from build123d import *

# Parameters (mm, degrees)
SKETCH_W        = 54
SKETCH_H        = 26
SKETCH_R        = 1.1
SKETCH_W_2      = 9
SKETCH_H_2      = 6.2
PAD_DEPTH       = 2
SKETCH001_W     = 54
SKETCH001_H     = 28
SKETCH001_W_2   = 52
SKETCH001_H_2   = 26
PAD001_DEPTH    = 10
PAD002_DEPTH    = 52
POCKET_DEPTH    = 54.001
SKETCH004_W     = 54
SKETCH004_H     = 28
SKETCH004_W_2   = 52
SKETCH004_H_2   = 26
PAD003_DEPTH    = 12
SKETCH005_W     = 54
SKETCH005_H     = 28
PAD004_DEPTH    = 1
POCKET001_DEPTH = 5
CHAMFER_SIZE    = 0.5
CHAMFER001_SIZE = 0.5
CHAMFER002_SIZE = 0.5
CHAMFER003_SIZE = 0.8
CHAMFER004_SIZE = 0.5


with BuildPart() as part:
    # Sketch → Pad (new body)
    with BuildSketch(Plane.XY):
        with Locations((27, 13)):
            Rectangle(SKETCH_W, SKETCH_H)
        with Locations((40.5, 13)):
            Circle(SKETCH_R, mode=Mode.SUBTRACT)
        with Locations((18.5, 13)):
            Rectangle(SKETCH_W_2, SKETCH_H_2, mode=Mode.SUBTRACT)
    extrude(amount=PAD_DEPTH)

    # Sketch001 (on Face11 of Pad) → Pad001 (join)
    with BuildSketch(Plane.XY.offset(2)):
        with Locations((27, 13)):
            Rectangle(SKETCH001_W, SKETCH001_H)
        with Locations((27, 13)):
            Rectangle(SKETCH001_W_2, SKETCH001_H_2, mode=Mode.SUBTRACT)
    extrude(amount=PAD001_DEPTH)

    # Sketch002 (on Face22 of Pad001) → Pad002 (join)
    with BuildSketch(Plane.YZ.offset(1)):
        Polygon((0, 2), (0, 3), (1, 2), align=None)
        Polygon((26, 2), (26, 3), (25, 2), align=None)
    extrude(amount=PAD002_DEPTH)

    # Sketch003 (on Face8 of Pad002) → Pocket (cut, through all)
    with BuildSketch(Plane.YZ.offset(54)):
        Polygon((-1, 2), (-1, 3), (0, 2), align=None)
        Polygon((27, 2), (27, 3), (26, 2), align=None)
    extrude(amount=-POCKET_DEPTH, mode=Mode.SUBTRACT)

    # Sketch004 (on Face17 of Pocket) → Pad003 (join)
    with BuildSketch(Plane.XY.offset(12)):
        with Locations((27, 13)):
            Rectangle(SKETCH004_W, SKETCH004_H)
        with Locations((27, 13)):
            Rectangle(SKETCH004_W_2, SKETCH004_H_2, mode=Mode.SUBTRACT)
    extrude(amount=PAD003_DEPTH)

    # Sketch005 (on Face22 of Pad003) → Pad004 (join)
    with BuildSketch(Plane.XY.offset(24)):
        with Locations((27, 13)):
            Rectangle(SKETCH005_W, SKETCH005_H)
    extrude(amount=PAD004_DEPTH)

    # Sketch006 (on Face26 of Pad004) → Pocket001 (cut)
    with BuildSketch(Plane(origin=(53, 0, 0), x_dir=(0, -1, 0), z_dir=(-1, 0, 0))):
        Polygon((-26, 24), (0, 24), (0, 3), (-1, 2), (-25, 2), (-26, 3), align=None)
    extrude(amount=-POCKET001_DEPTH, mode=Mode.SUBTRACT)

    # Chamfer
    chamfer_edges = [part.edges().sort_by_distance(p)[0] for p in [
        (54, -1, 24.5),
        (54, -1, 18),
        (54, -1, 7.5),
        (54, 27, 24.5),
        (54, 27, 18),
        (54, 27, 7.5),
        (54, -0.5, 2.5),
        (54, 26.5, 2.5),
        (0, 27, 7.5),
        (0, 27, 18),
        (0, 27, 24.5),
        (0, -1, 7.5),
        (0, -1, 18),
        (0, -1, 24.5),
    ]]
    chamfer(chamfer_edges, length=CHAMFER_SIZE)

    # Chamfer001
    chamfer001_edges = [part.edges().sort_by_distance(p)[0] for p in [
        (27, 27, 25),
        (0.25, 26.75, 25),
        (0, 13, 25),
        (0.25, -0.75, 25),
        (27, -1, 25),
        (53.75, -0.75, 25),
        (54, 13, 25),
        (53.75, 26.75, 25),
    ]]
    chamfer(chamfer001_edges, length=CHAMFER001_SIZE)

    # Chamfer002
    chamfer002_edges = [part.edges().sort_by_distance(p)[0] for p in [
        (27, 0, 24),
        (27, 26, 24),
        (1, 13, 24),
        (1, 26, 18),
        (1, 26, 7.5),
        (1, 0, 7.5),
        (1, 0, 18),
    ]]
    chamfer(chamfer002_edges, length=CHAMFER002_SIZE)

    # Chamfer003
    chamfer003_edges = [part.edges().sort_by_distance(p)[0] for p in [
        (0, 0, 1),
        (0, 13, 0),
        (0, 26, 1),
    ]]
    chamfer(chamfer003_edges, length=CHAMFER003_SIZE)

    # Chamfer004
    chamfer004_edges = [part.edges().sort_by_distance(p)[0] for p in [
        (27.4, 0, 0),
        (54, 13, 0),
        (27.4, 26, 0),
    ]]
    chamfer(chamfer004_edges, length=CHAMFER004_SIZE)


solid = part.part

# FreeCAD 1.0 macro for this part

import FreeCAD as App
import Part
import Sketcher
Q = App.Units.Quantity


def edges_at(feature, points):
    """Names of the edges that pass closest to the given points."""
    edges = feature.Shape.Edges
    near = lambda p: min(range(len(edges)), key=lambda i: edges[i].distToShape(Part.Vertex(*p))[0])
    return sorted({f"Edge{near(p) + 1}" for p in points})

doc = App.newDocument("Part")
body = doc.addObject("PartDesign::Body", "Body")

# Sketch on XY plane
sketch1 = body.newObject("Sketcher::SketchObject", "Sketch")
sketch1.AttachmentSupport = (doc.getObject("XY_Plane"), [""])
sketch1.MapMode = "FlatFace"
sketch1.addGeometry(Part.LineSegment(App.Vector(0, 26, 0), App.Vector(0, 0, 0)), False)
sketch1.addGeometry(Part.LineSegment(App.Vector(0, 0, 0), App.Vector(54, 0, 0)), False)
sketch1.addGeometry(Part.LineSegment(App.Vector(54, 0, 0), App.Vector(54, 26, 0)), False)
sketch1.addGeometry(Part.LineSegment(App.Vector(54, 26, 0), App.Vector(0, 26, 0)), False)
sketch1.addGeometry(Part.LineSegment(App.Vector(23, 9.9, 0), App.Vector(14, 9.9, 0)), False)
sketch1.addGeometry(Part.LineSegment(App.Vector(14, 9.9, 0), App.Vector(14, 16.1, 0)), False)
sketch1.addGeometry(Part.LineSegment(App.Vector(14, 16.1, 0), App.Vector(23, 16.1, 0)), False)
sketch1.addGeometry(Part.LineSegment(App.Vector(23, 16.1, 0), App.Vector(23, 9.9, 0)), False)
sketch1.addGeometry(Part.Circle(App.Vector(40.5, 13, 0), App.Vector(0, 0, 1), 1.1), False)
sketch1.addConstraint(Sketcher.Constraint("Coincident", 0, 2, 1, 1))
sketch1.addConstraint(Sketcher.Constraint("Coincident", 1, 2, 2, 1))
sketch1.addConstraint(Sketcher.Constraint("Coincident", 2, 2, 3, 1))
sketch1.addConstraint(Sketcher.Constraint("Coincident", 3, 2, 0, 1))
sketch1.addConstraint(Sketcher.Constraint("Coincident", 4, 2, 5, 1))
sketch1.addConstraint(Sketcher.Constraint("Coincident", 5, 2, 6, 1))
sketch1.addConstraint(Sketcher.Constraint("Coincident", 6, 2, 7, 1))
sketch1.addConstraint(Sketcher.Constraint("Coincident", 7, 2, 4, 1))
sketch1.addConstraint(Sketcher.Constraint("Vertical", 0))
sketch1.addConstraint(Sketcher.Constraint("Horizontal", 1))
sketch1.addConstraint(Sketcher.Constraint("Vertical", 2))
sketch1.addConstraint(Sketcher.Constraint("Horizontal", 3))
sketch1.addConstraint(Sketcher.Constraint("Horizontal", 4))
sketch1.addConstraint(Sketcher.Constraint("Vertical", 5))
sketch1.addConstraint(Sketcher.Constraint("Horizontal", 6))
sketch1.addConstraint(Sketcher.Constraint("Vertical", 7))
sketch1.addConstraint(Sketcher.Constraint("Coincident", 0, 2, -1, 1))
sketch1.addConstraint(Sketcher.Constraint("Diameter", 8, Q("2.2 mm")))
sketch1.addConstraint(Sketcher.Constraint("DistanceX", 1, 1, 1, 2, Q("54 mm")))
sketch1.addConstraint(Sketcher.Constraint("DistanceX", 4, 2, 4, 1, Q("9 mm")))
sketch1.addConstraint(Sketcher.Constraint("DistanceY", 0, 2, 0, 1, Q("26 mm")))
sketch1.addConstraint(Sketcher.Constraint("DistanceY", 5, 1, 5, 2, Q("6.2 mm")))
sketch1.addConstraint(Sketcher.Constraint("DistanceY", -1, 1, 8, 3, Q("13 mm")))
sketch1.addConstraint(Sketcher.Constraint("DistanceX", -1, 1, 4, 2, Q("14 mm")))
sketch1.addConstraint(Sketcher.Constraint("DistanceX", -1, 1, 8, 3, Q("40.5 mm")))
sketch1.addConstraint(Sketcher.Constraint("DistanceY", -1, 1, 4, 2, Q("9.9 mm")))
pad1 = body.newObject("PartDesign::Pad", "Pad")
pad1.Profile = sketch1
pad1.Length = 2

# Sketch on XY plane
sketch2 = body.newObject("Sketcher::SketchObject", "Sketch001")
sketch2.AttachmentSupport = (doc.getObject("XY_Plane"), [""])
sketch2.MapMode = "FlatFace"
sketch2.AttachmentOffset = App.Placement(App.Vector(0, 0, 2), App.Rotation())
sketch2.addGeometry(Part.LineSegment(App.Vector(0, 27, 0), App.Vector(0, -1, 0)), False)
sketch2.addGeometry(Part.LineSegment(App.Vector(0, -1, 0), App.Vector(54, -1, 0)), False)
sketch2.addGeometry(Part.LineSegment(App.Vector(54, -1, 0), App.Vector(54, 27, 0)), False)
sketch2.addGeometry(Part.LineSegment(App.Vector(54, 27, 0), App.Vector(0, 27, 0)), False)
sketch2.addGeometry(Part.LineSegment(App.Vector(53, 0, 0), App.Vector(1, 0, 0)), False)
sketch2.addGeometry(Part.LineSegment(App.Vector(1, 0, 0), App.Vector(1, 26, 0)), False)
sketch2.addGeometry(Part.LineSegment(App.Vector(1, 26, 0), App.Vector(53, 26, 0)), False)
sketch2.addGeometry(Part.LineSegment(App.Vector(53, 26, 0), App.Vector(53, 0, 0)), False)
sketch2.addConstraint(Sketcher.Constraint("Coincident", 0, 2, 1, 1))
sketch2.addConstraint(Sketcher.Constraint("Coincident", 1, 2, 2, 1))
sketch2.addConstraint(Sketcher.Constraint("Coincident", 2, 2, 3, 1))
sketch2.addConstraint(Sketcher.Constraint("Coincident", 3, 2, 0, 1))
sketch2.addConstraint(Sketcher.Constraint("Coincident", 4, 2, 5, 1))
sketch2.addConstraint(Sketcher.Constraint("Coincident", 5, 2, 6, 1))
sketch2.addConstraint(Sketcher.Constraint("Coincident", 6, 2, 7, 1))
sketch2.addConstraint(Sketcher.Constraint("Coincident", 7, 2, 4, 1))
sketch2.addConstraint(Sketcher.Constraint("Vertical", 0))
sketch2.addConstraint(Sketcher.Constraint("Horizontal", 1))
sketch2.addConstraint(Sketcher.Constraint("Vertical", 2))
sketch2.addConstraint(Sketcher.Constraint("Horizontal", 3))
sketch2.addConstraint(Sketcher.Constraint("Horizontal", 4))
sketch2.addConstraint(Sketcher.Constraint("Vertical", 5))
sketch2.addConstraint(Sketcher.Constraint("Horizontal", 6))
sketch2.addConstraint(Sketcher.Constraint("Vertical", 7))
sketch2.addConstraint(Sketcher.Constraint("PointOnObject", 0, 2, -2))
sketch2.addConstraint(Sketcher.Constraint("PointOnObject", 4, 2, -1))
sketch2.addConstraint(Sketcher.Constraint("DistanceX", 1, 1, 1, 2, Q("54 mm")))
sketch2.addConstraint(Sketcher.Constraint("DistanceX", 4, 2, 4, 1, Q("52 mm")))
sketch2.addConstraint(Sketcher.Constraint("DistanceY", 0, 2, 0, 1, Q("28 mm")))
sketch2.addConstraint(Sketcher.Constraint("DistanceY", 5, 1, 5, 2, Q("26 mm")))
sketch2.addConstraint(Sketcher.Constraint("DistanceY", 0, 2, -1, 1, Q("1 mm")))
sketch2.addConstraint(Sketcher.Constraint("DistanceX", -1, 1, 4, 2, Q("1 mm")))
pad2 = body.newObject("PartDesign::Pad", "Pad001")
pad2.Profile = sketch2
pad2.Length = 10

# Sketch on YZ plane
sketch3 = body.newObject("Sketcher::SketchObject", "Sketch002")
sketch3.AttachmentSupport = (doc.getObject("YZ_Plane"), [""])
sketch3.MapMode = "FlatFace"
sketch3.AttachmentOffset = App.Placement(App.Vector(0, 0, 1), App.Rotation())
sketch3.addGeometry(Part.LineSegment(App.Vector(0, 3, 0), App.Vector(0, 2, 0)), False)
sketch3.addGeometry(Part.LineSegment(App.Vector(0, 2, 0), App.Vector(1, 2, 0)), False)
sketch3.addGeometry(Part.LineSegment(App.Vector(1, 2, 0), App.Vector(0, 3, 0)), False)
sketch3.addGeometry(Part.LineSegment(App.Vector(26, 2, 0), App.Vector(26, 3, 0)), False)
sketch3.addGeometry(Part.LineSegment(App.Vector(26, 3, 0), App.Vector(25, 2, 0)), False)
sketch3.addGeometry(Part.LineSegment(App.Vector(25, 2, 0), App.Vector(26, 2, 0)), False)
sketch3.addConstraint(Sketcher.Constraint("Coincident", 0, 2, 1, 1))
sketch3.addConstraint(Sketcher.Constraint("Coincident", 1, 2, 2, 1))
sketch3.addConstraint(Sketcher.Constraint("Coincident", 2, 2, 0, 1))
sketch3.addConstraint(Sketcher.Constraint("Coincident", 3, 2, 4, 1))
sketch3.addConstraint(Sketcher.Constraint("Coincident", 4, 2, 5, 1))
sketch3.addConstraint(Sketcher.Constraint("Coincident", 5, 2, 3, 1))
sketch3.addConstraint(Sketcher.Constraint("Vertical", 0))
sketch3.addConstraint(Sketcher.Constraint("Horizontal", 1))
sketch3.addConstraint(Sketcher.Constraint("Vertical", 3))
sketch3.addConstraint(Sketcher.Constraint("Horizontal", 5))
sketch3.addConstraint(Sketcher.Constraint("PointOnObject", 0, 2, -2))
sketch3.addConstraint(Sketcher.Constraint("Perpendicular", 2, 4))
sketch3.addConstraint(Sketcher.Constraint("Horizontal", 2, 2, 3, 2))
sketch3.addConstraint(Sketcher.Constraint("Horizontal", 1, 2, 4, 2))
sketch3.addConstraint(Sketcher.Constraint("Equal", 1, 5))
sketch3.addConstraint(Sketcher.Constraint("DistanceX", 1, 1, 1, 2, Q("1 mm")))
sketch3.addConstraint(Sketcher.Constraint("DistanceY", -1, 1, 0, 2, Q("2 mm")))
sketch3.addConstraint(Sketcher.Constraint("DistanceX", -1, 1, 3, 2, Q("26 mm")))
pad3 = body.newObject("PartDesign::Pad", "Pad002")
pad3.Profile = sketch3
pad3.Length = 52

# Sketch on YZ plane
sketch4 = body.newObject("Sketcher::SketchObject", "Sketch003")
sketch4.AttachmentSupport = (doc.getObject("YZ_Plane"), [""])
sketch4.MapMode = "FlatFace"
sketch4.AttachmentOffset = App.Placement(App.Vector(0, 0, 54), App.Rotation())
sketch4.addGeometry(Part.LineSegment(App.Vector(-1, 3, 0), App.Vector(-1, 2, 0)), False)
sketch4.addGeometry(Part.LineSegment(App.Vector(-1, 2, 0), App.Vector(0, 2, 0)), False)
sketch4.addGeometry(Part.LineSegment(App.Vector(0, 2, 0), App.Vector(-1, 3, 0)), False)
sketch4.addGeometry(Part.LineSegment(App.Vector(27, 2, 0), App.Vector(27, 3, 0)), False)
sketch4.addGeometry(Part.LineSegment(App.Vector(27, 3, 0), App.Vector(26, 2, 0)), False)
sketch4.addGeometry(Part.LineSegment(App.Vector(26, 2, 0), App.Vector(27, 2, 0)), False)
sketch4.addConstraint(Sketcher.Constraint("Coincident", 0, 2, 1, 1))
sketch4.addConstraint(Sketcher.Constraint("Coincident", 1, 2, 2, 1))
sketch4.addConstraint(Sketcher.Constraint("Coincident", 2, 2, 0, 1))
sketch4.addConstraint(Sketcher.Constraint("Coincident", 3, 2, 4, 1))
sketch4.addConstraint(Sketcher.Constraint("Coincident", 4, 2, 5, 1))
sketch4.addConstraint(Sketcher.Constraint("Coincident", 5, 2, 3, 1))
sketch4.addConstraint(Sketcher.Constraint("Vertical", 0))
sketch4.addConstraint(Sketcher.Constraint("Horizontal", 1))
sketch4.addConstraint(Sketcher.Constraint("Vertical", 3))
sketch4.addConstraint(Sketcher.Constraint("Horizontal", 5))
sketch4.addConstraint(Sketcher.Constraint("PointOnObject", 1, 2, -2))
sketch4.addConstraint(Sketcher.Constraint("Perpendicular", 2, 4))
sketch4.addConstraint(Sketcher.Constraint("Horizontal", 2, 2, 3, 2))
sketch4.addConstraint(Sketcher.Constraint("Horizontal", 1, 2, 4, 2))
sketch4.addConstraint(Sketcher.Constraint("Equal", 1, 5))
sketch4.addConstraint(Sketcher.Constraint("DistanceX", 1, 1, 1, 2, Q("1 mm")))
sketch4.addConstraint(Sketcher.Constraint("DistanceY", -1, 1, 0, 2, Q("2 mm")))
sketch4.addConstraint(Sketcher.Constraint("DistanceX", -1, 1, 3, 2, Q("27 mm")))
pocket1 = body.newObject("PartDesign::Pocket", "Pocket")
pocket1.Profile = sketch4
pocket1.Type = "ThroughAll"

# Sketch on XY plane
sketch5 = body.newObject("Sketcher::SketchObject", "Sketch004")
sketch5.AttachmentSupport = (doc.getObject("XY_Plane"), [""])
sketch5.MapMode = "FlatFace"
sketch5.AttachmentOffset = App.Placement(App.Vector(0, 0, 12), App.Rotation())
sketch5.addGeometry(Part.LineSegment(App.Vector(0, 27, 0), App.Vector(0, -1, 0)), False)
sketch5.addGeometry(Part.LineSegment(App.Vector(0, -1, 0), App.Vector(54, -1, 0)), False)
sketch5.addGeometry(Part.LineSegment(App.Vector(54, -1, 0), App.Vector(54, 27, 0)), False)
sketch5.addGeometry(Part.LineSegment(App.Vector(54, 27, 0), App.Vector(0, 27, 0)), False)
sketch5.addGeometry(Part.LineSegment(App.Vector(53, 0, 0), App.Vector(1, 0, 0)), False)
sketch5.addGeometry(Part.LineSegment(App.Vector(1, 0, 0), App.Vector(1, 26, 0)), False)
sketch5.addGeometry(Part.LineSegment(App.Vector(1, 26, 0), App.Vector(53, 26, 0)), False)
sketch5.addGeometry(Part.LineSegment(App.Vector(53, 26, 0), App.Vector(53, 0, 0)), False)
sketch5.addConstraint(Sketcher.Constraint("Coincident", 0, 2, 1, 1))
sketch5.addConstraint(Sketcher.Constraint("Coincident", 1, 2, 2, 1))
sketch5.addConstraint(Sketcher.Constraint("Coincident", 2, 2, 3, 1))
sketch5.addConstraint(Sketcher.Constraint("Coincident", 3, 2, 0, 1))
sketch5.addConstraint(Sketcher.Constraint("Coincident", 4, 2, 5, 1))
sketch5.addConstraint(Sketcher.Constraint("Coincident", 5, 2, 6, 1))
sketch5.addConstraint(Sketcher.Constraint("Coincident", 6, 2, 7, 1))
sketch5.addConstraint(Sketcher.Constraint("Coincident", 7, 2, 4, 1))
sketch5.addConstraint(Sketcher.Constraint("Vertical", 0))
sketch5.addConstraint(Sketcher.Constraint("Horizontal", 1))
sketch5.addConstraint(Sketcher.Constraint("Vertical", 2))
sketch5.addConstraint(Sketcher.Constraint("Horizontal", 3))
sketch5.addConstraint(Sketcher.Constraint("Horizontal", 4))
sketch5.addConstraint(Sketcher.Constraint("Vertical", 5))
sketch5.addConstraint(Sketcher.Constraint("Horizontal", 6))
sketch5.addConstraint(Sketcher.Constraint("Vertical", 7))
sketch5.addConstraint(Sketcher.Constraint("PointOnObject", 0, 2, -2))
sketch5.addConstraint(Sketcher.Constraint("PointOnObject", 4, 2, -1))
sketch5.addConstraint(Sketcher.Constraint("DistanceX", 1, 1, 1, 2, Q("54 mm")))
sketch5.addConstraint(Sketcher.Constraint("DistanceX", 4, 2, 4, 1, Q("52 mm")))
sketch5.addConstraint(Sketcher.Constraint("DistanceY", 0, 2, 0, 1, Q("28 mm")))
sketch5.addConstraint(Sketcher.Constraint("DistanceY", 5, 1, 5, 2, Q("26 mm")))
sketch5.addConstraint(Sketcher.Constraint("DistanceY", 0, 2, -1, 1, Q("1 mm")))
sketch5.addConstraint(Sketcher.Constraint("DistanceX", -1, 1, 4, 2, Q("1 mm")))
pad4 = body.newObject("PartDesign::Pad", "Pad003")
pad4.Profile = sketch5
pad4.Length = 12

# Sketch on XY plane
sketch6 = body.newObject("Sketcher::SketchObject", "Sketch005")
sketch6.AttachmentSupport = (doc.getObject("XY_Plane"), [""])
sketch6.MapMode = "FlatFace"
sketch6.AttachmentOffset = App.Placement(App.Vector(0, 0, 24), App.Rotation())
sketch6.addGeometry(Part.LineSegment(App.Vector(0, 27, 0), App.Vector(0, -1, 0)), False)
sketch6.addGeometry(Part.LineSegment(App.Vector(0, -1, 0), App.Vector(54, -1, 0)), False)
sketch6.addGeometry(Part.LineSegment(App.Vector(54, -1, 0), App.Vector(54, 27, 0)), False)
sketch6.addGeometry(Part.LineSegment(App.Vector(54, 27, 0), App.Vector(0, 27, 0)), False)
sketch6.addConstraint(Sketcher.Constraint("Coincident", 0, 2, 1, 1))
sketch6.addConstraint(Sketcher.Constraint("Coincident", 1, 2, 2, 1))
sketch6.addConstraint(Sketcher.Constraint("Coincident", 2, 2, 3, 1))
sketch6.addConstraint(Sketcher.Constraint("Coincident", 3, 2, 0, 1))
sketch6.addConstraint(Sketcher.Constraint("Vertical", 0))
sketch6.addConstraint(Sketcher.Constraint("Horizontal", 1))
sketch6.addConstraint(Sketcher.Constraint("Vertical", 2))
sketch6.addConstraint(Sketcher.Constraint("Horizontal", 3))
sketch6.addConstraint(Sketcher.Constraint("PointOnObject", 0, 2, -2))
sketch6.addConstraint(Sketcher.Constraint("DistanceX", 1, 1, 1, 2, Q("54 mm")))
sketch6.addConstraint(Sketcher.Constraint("DistanceY", 0, 2, 0, 1, Q("28 mm")))
sketch6.addConstraint(Sketcher.Constraint("DistanceY", 0, 2, -1, 1, Q("1 mm")))
pad5 = body.newObject("PartDesign::Pad", "Pad004")
pad5.Profile = sketch6
pad5.Length = 1

# Sketch on YZ plane
sketch7 = body.newObject("Sketcher::SketchObject", "Sketch006")
sketch7.AttachmentSupport = (doc.getObject("YZ_Plane"), [""])
sketch7.MapMode = "FlatFace"
sketch7.AttachmentOffset = App.Placement(App.Vector(0, 0, 53), App.Rotation())
sketch7.addGeometry(Part.LineSegment(App.Vector(0, 24, 0), App.Vector(26, 24, 0)), False)
sketch7.addGeometry(Part.LineSegment(App.Vector(26, 24, 0), App.Vector(26, 3, 0)), False)
sketch7.addGeometry(Part.LineSegment(App.Vector(26, 3, 0), App.Vector(25, 2, 0)), False)
sketch7.addGeometry(Part.LineSegment(App.Vector(25, 2, 0), App.Vector(1, 2, 0)), False)
sketch7.addGeometry(Part.LineSegment(App.Vector(1, 2, 0), App.Vector(0, 3, 0)), False)
sketch7.addGeometry(Part.LineSegment(App.Vector(0, 3, 0), App.Vector(0, 24, 0)), False)
sketch7.addConstraint(Sketcher.Constraint("Coincident", 0, 2, 1, 1))
sketch7.addConstraint(Sketcher.Constraint("Coincident", 1, 2, 2, 1))
sketch7.addConstraint(Sketcher.Constraint("Coincident", 2, 2, 3, 1))
sketch7.addConstraint(Sketcher.Constraint("Coincident", 3, 2, 4, 1))
sketch7.addConstraint(Sketcher.Constraint("Coincident", 4, 2, 5, 1))
sketch7.addConstraint(Sketcher.Constraint("Coincident", 5, 2, 0, 1))
sketch7.addConstraint(Sketcher.Constraint("Horizontal", 0))
sketch7.addConstraint(Sketcher.Constraint("Vertical", 1))
sketch7.addConstraint(Sketcher.Constraint("Horizontal", 3))
sketch7.addConstraint(Sketcher.Constraint("Vertical", 5))
sketch7.addConstraint(Sketcher.Constraint("PointOnObject", 4, 2, -2))
sketch7.addConstraint(Sketcher.Constraint("Perpendicular", 2, 4))
sketch7.addConstraint(Sketcher.Constraint("Horizontal", 1, 2, 4, 2))
sketch7.addConstraint(Sketcher.Constraint("Equal", 2, 4))
sketch7.addConstraint(Sketcher.Constraint("DistanceX", 0, 1, 0, 2, Q("26 mm")))
sketch7.addConstraint(Sketcher.Constraint("DistanceX", 3, 2, 3, 1, Q("24 mm")))
sketch7.addConstraint(Sketcher.Constraint("DistanceY", 1, 2, 1, 1, Q("21 mm")))
sketch7.addConstraint(Sketcher.Constraint("DistanceY", -1, 1, 0, 2, Q("24 mm")))
pocket2 = body.newObject("PartDesign::Pocket", "Pocket001")
pocket2.Profile = sketch7
pocket2.Length = 5
pocket2.Reversed = True
doc.recompute()

chamfer = body.newObject("PartDesign::Chamfer", "Chamfer")
chamfer.Base = (pocket2, edges_at(pocket2, [
    (54, -1, 14),
    (54, -1, 14),
    (54, -1, 14),
    (54, 27, 14),
    (54, 27, 14),
    (54, 27, 14),
    (54, -0.5, 2.5),
    (54, 26.5, 2.5),
    (0, 27, 14),
    (0, 27, 14),
    (0, 27, 14),
    (0, -1, 14),
    (0, -1, 14),
    (0, -1, 14),
]))
chamfer.Size = 0.5
doc.recompute()

chamfer2 = body.newObject("PartDesign::Chamfer", "Chamfer001")
chamfer2.Base = (chamfer, edges_at(chamfer, [
    (27, 27, 25),
    (0.25, 26.75, 25),
    (0, 13, 25),
    (0.25, -0.75, 25),
    (27, -1, 25),
    (53.75, -0.75, 25),
    (54, 13, 25),
    (53.75, 26.75, 25),
]))
chamfer2.Size = 0.5
doc.recompute()

chamfer3 = body.newObject("PartDesign::Chamfer", "Chamfer002")
chamfer3.Base = (chamfer2, edges_at(chamfer2, [
    (27.5, 0, 24),
    (27.5, 26, 24),
    (1, 13, 24),
    (1, 26, 13.5),
    (1, 26, 13.5),
    (1, 0, 13.5),
    (1, 0, 13.5),
]))
chamfer3.Size = 0.5
doc.recompute()

chamfer4 = body.newObject("PartDesign::Chamfer", "Chamfer003")
chamfer4.Base = (chamfer3, edges_at(chamfer3, [(0, 0, 1), (0, 13, 0), (0, 26, 1)]))
chamfer4.Size = 0.8
doc.recompute()

chamfer5 = body.newObject("PartDesign::Chamfer", "Chamfer004")
chamfer5.Base = (chamfer4, edges_at(chamfer4, [(27.4, 0, 0), (54, 13, 0), (27.4, 26, 0)]))
chamfer5.Size = 0.5

doc.recompute()
